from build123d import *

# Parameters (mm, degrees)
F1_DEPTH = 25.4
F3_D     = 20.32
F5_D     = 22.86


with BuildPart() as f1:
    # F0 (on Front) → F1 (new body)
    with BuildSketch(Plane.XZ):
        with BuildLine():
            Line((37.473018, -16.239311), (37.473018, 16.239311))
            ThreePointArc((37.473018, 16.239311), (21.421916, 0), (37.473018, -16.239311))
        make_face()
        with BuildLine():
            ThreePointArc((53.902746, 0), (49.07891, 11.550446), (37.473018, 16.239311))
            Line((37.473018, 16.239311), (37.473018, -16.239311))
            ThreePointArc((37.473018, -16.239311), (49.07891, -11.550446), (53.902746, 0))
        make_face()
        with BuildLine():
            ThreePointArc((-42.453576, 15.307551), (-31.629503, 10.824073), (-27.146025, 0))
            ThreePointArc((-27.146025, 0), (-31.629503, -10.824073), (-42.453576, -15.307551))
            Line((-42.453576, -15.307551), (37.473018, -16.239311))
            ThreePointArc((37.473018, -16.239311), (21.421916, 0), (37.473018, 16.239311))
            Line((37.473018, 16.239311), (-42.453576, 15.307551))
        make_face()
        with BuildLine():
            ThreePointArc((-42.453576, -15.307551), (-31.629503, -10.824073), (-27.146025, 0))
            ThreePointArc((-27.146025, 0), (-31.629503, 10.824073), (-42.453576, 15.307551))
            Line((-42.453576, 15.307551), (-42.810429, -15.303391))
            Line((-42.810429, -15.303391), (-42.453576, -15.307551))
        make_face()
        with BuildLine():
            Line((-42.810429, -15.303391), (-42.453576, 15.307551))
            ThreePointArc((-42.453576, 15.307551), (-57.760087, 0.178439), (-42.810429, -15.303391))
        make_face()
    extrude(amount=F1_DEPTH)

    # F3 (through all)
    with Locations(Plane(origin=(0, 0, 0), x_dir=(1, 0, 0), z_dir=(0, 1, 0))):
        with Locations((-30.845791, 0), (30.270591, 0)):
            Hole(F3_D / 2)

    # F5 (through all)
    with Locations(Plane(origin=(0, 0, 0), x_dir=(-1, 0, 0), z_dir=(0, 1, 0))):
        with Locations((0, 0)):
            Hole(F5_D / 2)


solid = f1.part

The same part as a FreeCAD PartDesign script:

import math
import FreeCAD as App
import Part
import Sketcher
from FreeCAD import Vector
Q = App.Units.Quantity

doc = App.newDocument("Part")
body = doc.addObject("PartDesign::Body", "Body")

sketch1 = body.newObject("Sketcher::SketchObject", "Sketch")
sketch1.AttachmentSupport = (doc.getObject("XZ_Plane"), [""])
sketch1.MapMode = "FlatFace"
sketch1.addGeometry(Part.ArcOfCircle(Part.Circle(Vector(37.66, 0, 0), Vector(0, 0, 1), 16.24), math.radians(-91), math.radians(0)), False)
sketch1.addGeometry(Part.ArcOfCircle(Part.Circle(Vector(37.66, 0, 0), Vector(0, 0, 1), 16.24), math.radians(0), math.radians(91)), False)
sketch1.addGeometry(Part.LineSegment(Vector(37.47, 16.24, 0), Vector(-42.45, 15.31, 0)), False)
sketch1.addGeometry(Part.ArcOfCircle(Part.Circle(Vector(-42.45, 0, 0), Vector(0, 0, 1), 15.31), math.radians(90), math.radians(269)), False)
sketch1.addGeometry(Part.LineSegment(Vector(-42.81, -15.3, 0), Vector(-42.45, -15.31, 0)), False)
sketch1.addGeometry(Part.LineSegment(Vector(-42.45, -15.31, 0), Vector(37.47, -16.24, 0)), False)
sketch1.addConstraint(Sketcher.Constraint("Tangent", 0, 2, 1, 1))
sketch1.addConstraint(Sketcher.Constraint("Tangent", 1, 2, 2, 1))
sketch1.addConstraint(Sketcher.Constraint("Coincident", 2, 2, 3, 1))
sketch1.addConstraint(Sketcher.Constraint("Coincident", 3, 2, 4, 1))
sketch1.addConstraint(Sketcher.Constraint("Coincident", 4, 2, 5, 1))
sketch1.addConstraint(Sketcher.Constraint("Tangent", 5, 2, 0, 1))
sketch1.addConstraint(Sketcher.Constraint("Equal", 0, 1))
sketch1.addConstraint(Sketcher.Constraint("Symmetric", 2, 2, 4, 2, -1))
sketch1.addConstraint(Sketcher.Constraint("PointOnObject", 0, 3, -1))
sketch1.addConstraint(Sketcher.Constraint("PointOnObject", 3, 3, -1))
sketch1.addConstraint(Sketcher.Constraint("PointOnObject", 0, 2, -1))
sketch1.addConstraint(Sketcher.Constraint("Parallel", 4, 5))
sketch1.addConstraint(Sketcher.Constraint("Vertical", 3, 3, 2, 2))
sketch1.addConstraint(Sketcher.Constraint("Radius", 3, 15.307551))
sketch1.addConstraint(Sketcher.Constraint("Radius", 0, 16.240414))
sketch1.addConstraint(Sketcher.Constraint("DistanceX", -1, 1, 0, 3, 37.662332))
sketch1.addConstraint(Sketcher.Constraint("DistanceX", 3, 2, -1, 1, 42.810429))
pad1 = body.newObject("PartDesign::Pad", "Pad")
pad1.Profile = sketch1
pad1.Length = Q("1 in")

sketch2 = body.newObject("Sketcher::SketchObject", "Sketch001")
sketch2.AttachmentSupport = (doc.getObject("XZ_Plane"), [""])
sketch2.MapMode = "FlatFace"
sketch2.addGeometry(Part.Circle(Vector(-31, 0, 0), Vector(0, 0, 1), 10), False)
sketch2.addGeometry(Part.Circle(Vector(30, 0, 0), Vector(0, 0, 1), 10), False)
sketch2.addConstraint(Sketcher.Constraint("Equal", 0, 1))
sketch2.addConstraint(Sketcher.Constraint("PointOnObject", 0, 3, -1))
sketch2.addConstraint(Sketcher.Constraint("PointOnObject", 1, 3, -1))
sketch2.addConstraint(Sketcher.Constraint("Diameter", 0, Q("0.8 in")))
sketch2.addConstraint(Sketcher.Constraint("DistanceX", 0, 3, -1, 1, 30.845791))
sketch2.addConstraint(Sketcher.Constraint("DistanceX", -1, 1, 1, 3, 30.270591))
doc.recompute()
hole = body.newObject("PartDesign::Hole", "Hole")
hole.Profile = sketch2
hole.ThreadType = "None"
hole.Diameter = Q("0.8 in")
hole.DepthType = "ThroughAll"
hole.Reversed = True

sketch3 = body.newObject("Sketcher::SketchObject", "Sketch002")
sketch3.AttachmentSupport = (doc.getObject("XZ_Plane"), [""])
sketch3.MapMode = "FlatFace"
sketch3.addGeometry(Part.Circle(Vector(0, 0, 0), Vector(0, 0, 1), 11), False)
sketch3.addConstraint(Sketcher.Constraint("Coincident", 0, 3, -1, 1))
sketch3.addConstraint(Sketcher.Constraint("Diameter", 0, Q("0.9 in")))
doc.recompute()
hole2 = body.newObject("PartDesign::Hole", "Hole001")
hole2.Profile = sketch3
hole2.ThreadType = "None"
hole2.Diameter = Q("0.9 in")
hole2.DepthType = "ThroughAll"
hole2.Reversed = True

doc.recompute()
